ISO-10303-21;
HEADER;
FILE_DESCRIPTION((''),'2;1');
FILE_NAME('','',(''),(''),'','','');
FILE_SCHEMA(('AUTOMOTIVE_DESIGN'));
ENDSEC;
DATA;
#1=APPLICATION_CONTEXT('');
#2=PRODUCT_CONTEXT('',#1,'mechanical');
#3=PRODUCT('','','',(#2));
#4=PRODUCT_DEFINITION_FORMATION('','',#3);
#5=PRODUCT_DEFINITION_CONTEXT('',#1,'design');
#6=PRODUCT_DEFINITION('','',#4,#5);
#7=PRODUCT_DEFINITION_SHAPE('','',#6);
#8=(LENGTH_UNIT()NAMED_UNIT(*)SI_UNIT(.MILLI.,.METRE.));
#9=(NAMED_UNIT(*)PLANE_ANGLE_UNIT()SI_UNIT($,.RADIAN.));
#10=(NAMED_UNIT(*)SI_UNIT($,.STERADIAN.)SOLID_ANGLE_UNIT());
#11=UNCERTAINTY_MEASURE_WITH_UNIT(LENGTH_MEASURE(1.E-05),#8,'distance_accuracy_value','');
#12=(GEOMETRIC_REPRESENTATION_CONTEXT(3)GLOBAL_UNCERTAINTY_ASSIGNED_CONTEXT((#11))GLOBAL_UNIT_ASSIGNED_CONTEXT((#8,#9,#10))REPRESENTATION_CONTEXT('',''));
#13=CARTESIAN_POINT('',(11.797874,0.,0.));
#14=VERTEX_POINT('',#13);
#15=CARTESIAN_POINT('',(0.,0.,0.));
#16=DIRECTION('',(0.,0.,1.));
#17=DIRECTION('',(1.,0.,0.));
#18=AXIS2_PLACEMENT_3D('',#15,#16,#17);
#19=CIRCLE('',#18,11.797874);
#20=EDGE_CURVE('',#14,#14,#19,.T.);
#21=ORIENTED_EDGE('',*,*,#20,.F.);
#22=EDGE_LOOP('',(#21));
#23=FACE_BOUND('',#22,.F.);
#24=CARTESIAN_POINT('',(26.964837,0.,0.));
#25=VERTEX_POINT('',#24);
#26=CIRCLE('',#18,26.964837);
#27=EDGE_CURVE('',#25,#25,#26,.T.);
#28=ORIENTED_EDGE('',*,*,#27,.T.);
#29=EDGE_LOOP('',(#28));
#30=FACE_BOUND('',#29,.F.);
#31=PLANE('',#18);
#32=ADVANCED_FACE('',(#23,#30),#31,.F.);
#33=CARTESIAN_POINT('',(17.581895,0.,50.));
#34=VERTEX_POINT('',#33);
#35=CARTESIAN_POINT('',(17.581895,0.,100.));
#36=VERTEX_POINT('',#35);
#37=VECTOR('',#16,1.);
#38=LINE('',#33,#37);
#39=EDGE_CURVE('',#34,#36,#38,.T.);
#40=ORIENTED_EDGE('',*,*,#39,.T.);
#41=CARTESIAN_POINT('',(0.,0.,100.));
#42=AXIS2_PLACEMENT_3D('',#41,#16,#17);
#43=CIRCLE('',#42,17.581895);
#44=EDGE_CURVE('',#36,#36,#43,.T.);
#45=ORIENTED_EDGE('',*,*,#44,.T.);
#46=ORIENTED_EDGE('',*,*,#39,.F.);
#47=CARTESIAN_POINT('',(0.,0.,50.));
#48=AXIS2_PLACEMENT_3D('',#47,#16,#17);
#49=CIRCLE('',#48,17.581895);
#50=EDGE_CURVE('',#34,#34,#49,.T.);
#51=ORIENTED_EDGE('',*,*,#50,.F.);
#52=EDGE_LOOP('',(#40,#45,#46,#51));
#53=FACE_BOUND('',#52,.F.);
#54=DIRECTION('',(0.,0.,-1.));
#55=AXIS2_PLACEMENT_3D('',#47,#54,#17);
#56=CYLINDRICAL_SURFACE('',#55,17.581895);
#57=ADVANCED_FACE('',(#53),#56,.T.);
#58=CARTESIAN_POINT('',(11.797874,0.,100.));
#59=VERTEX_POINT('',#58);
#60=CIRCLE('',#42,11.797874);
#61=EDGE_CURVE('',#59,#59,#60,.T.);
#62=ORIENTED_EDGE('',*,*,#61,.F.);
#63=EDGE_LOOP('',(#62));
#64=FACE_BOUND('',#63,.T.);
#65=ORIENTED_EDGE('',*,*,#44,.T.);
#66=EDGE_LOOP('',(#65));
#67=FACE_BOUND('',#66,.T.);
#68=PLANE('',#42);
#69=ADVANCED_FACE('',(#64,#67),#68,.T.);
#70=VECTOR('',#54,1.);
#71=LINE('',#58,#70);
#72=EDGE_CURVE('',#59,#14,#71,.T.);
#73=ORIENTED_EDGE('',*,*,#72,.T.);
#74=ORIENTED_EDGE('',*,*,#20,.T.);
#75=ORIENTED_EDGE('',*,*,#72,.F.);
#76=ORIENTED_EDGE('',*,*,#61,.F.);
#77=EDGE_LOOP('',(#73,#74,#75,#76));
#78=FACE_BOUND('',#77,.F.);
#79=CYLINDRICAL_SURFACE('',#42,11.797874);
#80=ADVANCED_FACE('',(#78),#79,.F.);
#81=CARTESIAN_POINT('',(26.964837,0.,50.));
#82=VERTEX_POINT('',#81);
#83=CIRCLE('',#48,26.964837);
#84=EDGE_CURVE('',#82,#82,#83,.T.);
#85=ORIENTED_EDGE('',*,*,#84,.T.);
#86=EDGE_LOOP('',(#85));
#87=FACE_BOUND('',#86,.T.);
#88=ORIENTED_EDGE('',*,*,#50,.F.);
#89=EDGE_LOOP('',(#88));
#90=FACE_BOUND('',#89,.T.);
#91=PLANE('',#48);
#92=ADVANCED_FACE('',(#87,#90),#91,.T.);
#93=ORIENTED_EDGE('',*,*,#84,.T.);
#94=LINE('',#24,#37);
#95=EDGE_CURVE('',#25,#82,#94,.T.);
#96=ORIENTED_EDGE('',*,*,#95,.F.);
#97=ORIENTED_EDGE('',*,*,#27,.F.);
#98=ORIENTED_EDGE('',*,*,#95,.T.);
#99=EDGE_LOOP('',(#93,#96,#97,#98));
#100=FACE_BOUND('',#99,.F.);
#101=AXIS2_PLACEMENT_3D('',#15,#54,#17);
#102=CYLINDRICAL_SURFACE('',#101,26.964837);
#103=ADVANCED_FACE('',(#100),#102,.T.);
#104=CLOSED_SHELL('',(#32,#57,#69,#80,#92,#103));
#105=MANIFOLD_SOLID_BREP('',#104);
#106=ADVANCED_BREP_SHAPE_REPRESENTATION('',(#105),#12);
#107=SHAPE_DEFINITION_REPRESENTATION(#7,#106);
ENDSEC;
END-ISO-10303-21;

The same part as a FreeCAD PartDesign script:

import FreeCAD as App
import Part
import Sketcher
Q = App.Units.Quantity

doc = App.newDocument("Part")
body = doc.addObject("PartDesign::Body", "Body")

sketch1 = doc.addObject("Sketcher::SketchObject", "Sketch")
body.addObject(sketch1)
sketch1.AttachmentSupport = (doc.XY_Plane, [""])
sketch1.MapMode = "FlatFace"
sketch1.addGeometry(Part.Circle(App.Vector(0, 0, 0), App.Vector(0, 0, 1), 27), False)
sketch1.addConstraint(Sketcher.Constraint("Coincident", 0, 3, -1, 1))
sketch1.addConstraint(Sketcher.Constraint("Diameter", 0, Q("53.929674 mm")))
pad1 = doc.addObject("PartDesign::Pad", "Pad")
body.addObject(pad1)
pad1.Profile = sketch1
pad1.Length = 50

sketch2 = doc.addObject("Sketcher::SketchObject", "Sketch001")
body.addObject(sketch2)
sketch2.AttachmentSupport = (doc.XY_Plane, [""])
sketch2.MapMode = "FlatFace"
sketch2.AttachmentOffset = App.Placement(App.Vector(0, 0, 50), App.Rotation())
sketch2.addGeometry(Part.Circle(App.Vector(0, 0, 0), App.Vector(0, 0, 1), 18), False)
sketch2.addConstraint(Sketcher.Constraint("Coincident", 0, 3, -1, 1))
sketch2.addConstraint(Sketcher.Constraint("Diameter", 0, Q("35.16379 mm")))
pad2 = doc.addObject("PartDesign::Pad", "Pad001")
body.addObject(pad2)
pad2.Profile = sketch2
pad2.Length = 50

sketch3 = doc.addObject("Sketcher::SketchObject", "Sketch002")
body.addObject(sketch3)
sketch3.AttachmentSupport = (doc.XY_Plane, [""])
sketch3.MapMode = "FlatFace"
sketch3.AttachmentOffset = App.Placement(App.Vector(0, 0, 100), App.Rotation())
sketch3.addGeometry(Part.Circle(App.Vector(0, 0, 0), App.Vector(0, 0, 1), 12), False)
sketch3.addConstraint(Sketcher.Constraint("Coincident", 0, 3, -1, 1))
sketch3.addConstraint(Sketcher.Constraint("Diameter", 0, Q("23.595748 mm")))
pocket1 = doc.addObject("PartDesign::Pocket", "Pocket")
body.addObject(pocket1)
pocket1.Profile = sketch3
pocket1.Type = "ThroughAll"

doc.recompute()
